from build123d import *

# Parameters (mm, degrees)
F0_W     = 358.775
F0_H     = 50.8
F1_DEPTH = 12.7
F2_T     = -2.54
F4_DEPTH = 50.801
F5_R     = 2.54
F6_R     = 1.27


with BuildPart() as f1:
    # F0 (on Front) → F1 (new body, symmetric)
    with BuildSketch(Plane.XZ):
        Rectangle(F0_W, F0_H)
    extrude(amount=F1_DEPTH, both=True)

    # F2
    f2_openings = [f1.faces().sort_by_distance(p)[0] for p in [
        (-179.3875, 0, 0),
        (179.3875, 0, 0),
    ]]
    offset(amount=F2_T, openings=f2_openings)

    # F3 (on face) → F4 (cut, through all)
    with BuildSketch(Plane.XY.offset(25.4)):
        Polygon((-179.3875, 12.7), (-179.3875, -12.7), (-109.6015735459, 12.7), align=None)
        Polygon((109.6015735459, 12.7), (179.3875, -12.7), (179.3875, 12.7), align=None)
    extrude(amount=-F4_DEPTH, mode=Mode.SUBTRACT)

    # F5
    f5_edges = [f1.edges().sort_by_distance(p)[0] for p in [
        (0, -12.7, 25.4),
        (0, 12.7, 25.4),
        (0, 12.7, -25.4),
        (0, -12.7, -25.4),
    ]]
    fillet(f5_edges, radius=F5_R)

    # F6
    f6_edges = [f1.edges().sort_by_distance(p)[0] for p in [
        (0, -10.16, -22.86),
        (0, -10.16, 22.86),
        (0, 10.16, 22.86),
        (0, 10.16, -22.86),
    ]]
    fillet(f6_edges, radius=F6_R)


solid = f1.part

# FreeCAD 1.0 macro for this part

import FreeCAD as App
import Part
import Sketcher

V = App.Vector
Q = App.Units.Quantity


def edges_at(feature, points):
    """Names of the edges that pass closest to the given points."""
    edges = feature.Shape.Edges
    near = lambda p: min(range(len(edges)), key=lambda i: edges[i].distToShape(Part.Vertex(*p))[0])
    return sorted({f"Edge{near(p) + 1}" for p in points})


def faces_at(feature, points):
    """Names of the faces that lie closest to the given points."""
    faces = feature.Shape.Faces
    near = lambda p: min(range(len(faces)), key=lambda i: faces[i].distToShape(Part.Vertex(*p))[0])
    return sorted({f"Face{near(p) + 1}" for p in points})


def add_polygon(sketch, points):
    """Adds a closed chain of lines whose ends are joined by coincident constraints."""
    first, n = sketch.GeometryCount, len(points)
    for a, b in zip(points, points[1:] + points[:1]):
        sketch.addGeometry(Part.LineSegment(App.Vector(*a, 0), App.Vector(*b, 0)), False)
    for i in range(n):
        sketch.addConstraint(Sketcher.Constraint("Coincident", first + i, 2, first + (i + 1) % n, 1))

doc = App.newDocument("Part")
params = doc.addObject("Spreadsheet::Sheet", "Params")
for row, (alias, value) in enumerate([
    ("sketch1_height", "2 in"),
    ("sketch1_width", "14.125 in"),
    ("pad1_length", "1 in"),
    ("thickness_wall", "0.1 in"),
    ("sketch2_height", "1 in"),
    ("fillet_radius", "0.1 in"),
    ("fillet2_radius", "0.05 in"),
], start=1):
    params.set(f"A{row}", alias)
    params.set(f"B{row}", "=" + value)
    params.setAlias(f"B{row}", alias)

body = doc.addObject("PartDesign::Body", "Body")

sketch1 = doc.addObject("Sketcher::SketchObject", "Sketch")
body.addObject(sketch1)
sketch1.AttachmentSupport = (doc.XZ_Plane, [""])
sketch1.MapMode = "FlatFace"
add_polygon(sketch1, [(-179, 25), (-179, -25), (179, -25), (179, 25)])
sketch1.addConstraint([
    Sketcher.Constraint("Vertical", 0),
    Sketcher.Constraint("Horizontal", 1),
    Sketcher.Constraint("Vertical", 2),
    Sketcher.Constraint("Horizontal", 3),
    Sketcher.Constraint("Symmetric", 0, 2, 2, 2, -1, 1),
    Sketcher.Constraint("DistanceY", 0, 2, 0, 1, Q("2 in")),
    Sketcher.Constraint("DistanceX", 1, 1, 1, 2, Q("14.125 in")),
])
sketch1.setExpression("Constraints[9]", "Params.sketch1_height")
sketch1.setExpression("Constraints[10]", "Params.sketch1_width")
pad1 = doc.addObject("PartDesign::Pad", "Pad")
body.addObject(pad1)
pad1.Profile = sketch1
pad1.setExpression("Length", "Params.pad1_length")
pad1.Midplane = True
doc.recompute()

thickness = doc.addObject("PartDesign::Thickness", "Thickness")
body.addObject(thickness)
thickness.Base = (pad1, faces_at(pad1, [(-179.387, 0, 0), (179.387, 0, 0)]))
thickness.setExpression("Value", "Params.thickness_wall")
thickness.Reversed = True
thickness.Join = "Arc"

sketch2 = doc.addObject("Sketcher::SketchObject", "Sketch001")
body.addObject(sketch2)
sketch2.AttachmentSupport = (doc.XY_Plane, [""])
sketch2.MapMode = "FlatFace"
sketch2.AttachmentOffset = App.Placement(V(0, 0, 1 * 25.4), App.Rotation())
add_polygon(sketch2, [(-179, 13), (-179, -13), (-110, 13)])
add_polygon(sketch2, [(110, 13), (179, -13), (179, 13)])
sketch2.addConstraint([
    Sketcher.Constraint("Vertical", 0),
    Sketcher.Constraint("Horizontal", 2),
    Sketcher.Constraint("Vertical", 4),
    Sketcher.Constraint("Horizontal", 5),
    Sketcher.Constraint("Symmetric", 2, 2, 3, 2, -1, 1),
    Sketcher.Constraint("Symmetric", 1, 2, 5, 2, -2),
    Sketcher.Constraint("Horizontal", 0, 2, 3, 2),
    Sketcher.Constraint("DistanceY", 0, 2, 0, 1, Q("1 in")),
    Sketcher.Constraint("Angle", 1, Q("20 deg")),
    Sketcher.Constraint("DistanceX", 0, 2, -1, 1, Q("7.0625 in")),
])
sketch2.setExpression("Constraints[13]", "Params.sketch2_height")
pocket1 = doc.addObject("PartDesign::Pocket", "Pocket")
body.addObject(pocket1)
pocket1.Profile = sketch2
pocket1.Type = "ThroughAll"
doc.recompute()

fillet = doc.addObject("PartDesign::Fillet", "Fillet")
body.addObject(fillet)
fillet.Base = (pocket1, edges_at(pocket1, [
    (0, -12.7, 25.4),
    (0, 12.7, 25.4),
    (0, 12.7, -25.4),
    (0, -12.7, -25.4),
]))
fillet.setExpression("Radius", "Params.fillet_radius")
doc.recompute()

fillet2 = doc.addObject("PartDesign::Fillet", "Fillet001")
body.addObject(fillet2)
fillet2.Base = (fillet, edges_at(fillet, [
    (0, -10.16, -22.86),
    (0, -10.16, 22.86),
    (0, 10.16, 22.86),
    (0, 10.16, -22.86),
]))
fillet2.setExpression("Radius", "Params.fillet2_radius")

doc.recompute()
